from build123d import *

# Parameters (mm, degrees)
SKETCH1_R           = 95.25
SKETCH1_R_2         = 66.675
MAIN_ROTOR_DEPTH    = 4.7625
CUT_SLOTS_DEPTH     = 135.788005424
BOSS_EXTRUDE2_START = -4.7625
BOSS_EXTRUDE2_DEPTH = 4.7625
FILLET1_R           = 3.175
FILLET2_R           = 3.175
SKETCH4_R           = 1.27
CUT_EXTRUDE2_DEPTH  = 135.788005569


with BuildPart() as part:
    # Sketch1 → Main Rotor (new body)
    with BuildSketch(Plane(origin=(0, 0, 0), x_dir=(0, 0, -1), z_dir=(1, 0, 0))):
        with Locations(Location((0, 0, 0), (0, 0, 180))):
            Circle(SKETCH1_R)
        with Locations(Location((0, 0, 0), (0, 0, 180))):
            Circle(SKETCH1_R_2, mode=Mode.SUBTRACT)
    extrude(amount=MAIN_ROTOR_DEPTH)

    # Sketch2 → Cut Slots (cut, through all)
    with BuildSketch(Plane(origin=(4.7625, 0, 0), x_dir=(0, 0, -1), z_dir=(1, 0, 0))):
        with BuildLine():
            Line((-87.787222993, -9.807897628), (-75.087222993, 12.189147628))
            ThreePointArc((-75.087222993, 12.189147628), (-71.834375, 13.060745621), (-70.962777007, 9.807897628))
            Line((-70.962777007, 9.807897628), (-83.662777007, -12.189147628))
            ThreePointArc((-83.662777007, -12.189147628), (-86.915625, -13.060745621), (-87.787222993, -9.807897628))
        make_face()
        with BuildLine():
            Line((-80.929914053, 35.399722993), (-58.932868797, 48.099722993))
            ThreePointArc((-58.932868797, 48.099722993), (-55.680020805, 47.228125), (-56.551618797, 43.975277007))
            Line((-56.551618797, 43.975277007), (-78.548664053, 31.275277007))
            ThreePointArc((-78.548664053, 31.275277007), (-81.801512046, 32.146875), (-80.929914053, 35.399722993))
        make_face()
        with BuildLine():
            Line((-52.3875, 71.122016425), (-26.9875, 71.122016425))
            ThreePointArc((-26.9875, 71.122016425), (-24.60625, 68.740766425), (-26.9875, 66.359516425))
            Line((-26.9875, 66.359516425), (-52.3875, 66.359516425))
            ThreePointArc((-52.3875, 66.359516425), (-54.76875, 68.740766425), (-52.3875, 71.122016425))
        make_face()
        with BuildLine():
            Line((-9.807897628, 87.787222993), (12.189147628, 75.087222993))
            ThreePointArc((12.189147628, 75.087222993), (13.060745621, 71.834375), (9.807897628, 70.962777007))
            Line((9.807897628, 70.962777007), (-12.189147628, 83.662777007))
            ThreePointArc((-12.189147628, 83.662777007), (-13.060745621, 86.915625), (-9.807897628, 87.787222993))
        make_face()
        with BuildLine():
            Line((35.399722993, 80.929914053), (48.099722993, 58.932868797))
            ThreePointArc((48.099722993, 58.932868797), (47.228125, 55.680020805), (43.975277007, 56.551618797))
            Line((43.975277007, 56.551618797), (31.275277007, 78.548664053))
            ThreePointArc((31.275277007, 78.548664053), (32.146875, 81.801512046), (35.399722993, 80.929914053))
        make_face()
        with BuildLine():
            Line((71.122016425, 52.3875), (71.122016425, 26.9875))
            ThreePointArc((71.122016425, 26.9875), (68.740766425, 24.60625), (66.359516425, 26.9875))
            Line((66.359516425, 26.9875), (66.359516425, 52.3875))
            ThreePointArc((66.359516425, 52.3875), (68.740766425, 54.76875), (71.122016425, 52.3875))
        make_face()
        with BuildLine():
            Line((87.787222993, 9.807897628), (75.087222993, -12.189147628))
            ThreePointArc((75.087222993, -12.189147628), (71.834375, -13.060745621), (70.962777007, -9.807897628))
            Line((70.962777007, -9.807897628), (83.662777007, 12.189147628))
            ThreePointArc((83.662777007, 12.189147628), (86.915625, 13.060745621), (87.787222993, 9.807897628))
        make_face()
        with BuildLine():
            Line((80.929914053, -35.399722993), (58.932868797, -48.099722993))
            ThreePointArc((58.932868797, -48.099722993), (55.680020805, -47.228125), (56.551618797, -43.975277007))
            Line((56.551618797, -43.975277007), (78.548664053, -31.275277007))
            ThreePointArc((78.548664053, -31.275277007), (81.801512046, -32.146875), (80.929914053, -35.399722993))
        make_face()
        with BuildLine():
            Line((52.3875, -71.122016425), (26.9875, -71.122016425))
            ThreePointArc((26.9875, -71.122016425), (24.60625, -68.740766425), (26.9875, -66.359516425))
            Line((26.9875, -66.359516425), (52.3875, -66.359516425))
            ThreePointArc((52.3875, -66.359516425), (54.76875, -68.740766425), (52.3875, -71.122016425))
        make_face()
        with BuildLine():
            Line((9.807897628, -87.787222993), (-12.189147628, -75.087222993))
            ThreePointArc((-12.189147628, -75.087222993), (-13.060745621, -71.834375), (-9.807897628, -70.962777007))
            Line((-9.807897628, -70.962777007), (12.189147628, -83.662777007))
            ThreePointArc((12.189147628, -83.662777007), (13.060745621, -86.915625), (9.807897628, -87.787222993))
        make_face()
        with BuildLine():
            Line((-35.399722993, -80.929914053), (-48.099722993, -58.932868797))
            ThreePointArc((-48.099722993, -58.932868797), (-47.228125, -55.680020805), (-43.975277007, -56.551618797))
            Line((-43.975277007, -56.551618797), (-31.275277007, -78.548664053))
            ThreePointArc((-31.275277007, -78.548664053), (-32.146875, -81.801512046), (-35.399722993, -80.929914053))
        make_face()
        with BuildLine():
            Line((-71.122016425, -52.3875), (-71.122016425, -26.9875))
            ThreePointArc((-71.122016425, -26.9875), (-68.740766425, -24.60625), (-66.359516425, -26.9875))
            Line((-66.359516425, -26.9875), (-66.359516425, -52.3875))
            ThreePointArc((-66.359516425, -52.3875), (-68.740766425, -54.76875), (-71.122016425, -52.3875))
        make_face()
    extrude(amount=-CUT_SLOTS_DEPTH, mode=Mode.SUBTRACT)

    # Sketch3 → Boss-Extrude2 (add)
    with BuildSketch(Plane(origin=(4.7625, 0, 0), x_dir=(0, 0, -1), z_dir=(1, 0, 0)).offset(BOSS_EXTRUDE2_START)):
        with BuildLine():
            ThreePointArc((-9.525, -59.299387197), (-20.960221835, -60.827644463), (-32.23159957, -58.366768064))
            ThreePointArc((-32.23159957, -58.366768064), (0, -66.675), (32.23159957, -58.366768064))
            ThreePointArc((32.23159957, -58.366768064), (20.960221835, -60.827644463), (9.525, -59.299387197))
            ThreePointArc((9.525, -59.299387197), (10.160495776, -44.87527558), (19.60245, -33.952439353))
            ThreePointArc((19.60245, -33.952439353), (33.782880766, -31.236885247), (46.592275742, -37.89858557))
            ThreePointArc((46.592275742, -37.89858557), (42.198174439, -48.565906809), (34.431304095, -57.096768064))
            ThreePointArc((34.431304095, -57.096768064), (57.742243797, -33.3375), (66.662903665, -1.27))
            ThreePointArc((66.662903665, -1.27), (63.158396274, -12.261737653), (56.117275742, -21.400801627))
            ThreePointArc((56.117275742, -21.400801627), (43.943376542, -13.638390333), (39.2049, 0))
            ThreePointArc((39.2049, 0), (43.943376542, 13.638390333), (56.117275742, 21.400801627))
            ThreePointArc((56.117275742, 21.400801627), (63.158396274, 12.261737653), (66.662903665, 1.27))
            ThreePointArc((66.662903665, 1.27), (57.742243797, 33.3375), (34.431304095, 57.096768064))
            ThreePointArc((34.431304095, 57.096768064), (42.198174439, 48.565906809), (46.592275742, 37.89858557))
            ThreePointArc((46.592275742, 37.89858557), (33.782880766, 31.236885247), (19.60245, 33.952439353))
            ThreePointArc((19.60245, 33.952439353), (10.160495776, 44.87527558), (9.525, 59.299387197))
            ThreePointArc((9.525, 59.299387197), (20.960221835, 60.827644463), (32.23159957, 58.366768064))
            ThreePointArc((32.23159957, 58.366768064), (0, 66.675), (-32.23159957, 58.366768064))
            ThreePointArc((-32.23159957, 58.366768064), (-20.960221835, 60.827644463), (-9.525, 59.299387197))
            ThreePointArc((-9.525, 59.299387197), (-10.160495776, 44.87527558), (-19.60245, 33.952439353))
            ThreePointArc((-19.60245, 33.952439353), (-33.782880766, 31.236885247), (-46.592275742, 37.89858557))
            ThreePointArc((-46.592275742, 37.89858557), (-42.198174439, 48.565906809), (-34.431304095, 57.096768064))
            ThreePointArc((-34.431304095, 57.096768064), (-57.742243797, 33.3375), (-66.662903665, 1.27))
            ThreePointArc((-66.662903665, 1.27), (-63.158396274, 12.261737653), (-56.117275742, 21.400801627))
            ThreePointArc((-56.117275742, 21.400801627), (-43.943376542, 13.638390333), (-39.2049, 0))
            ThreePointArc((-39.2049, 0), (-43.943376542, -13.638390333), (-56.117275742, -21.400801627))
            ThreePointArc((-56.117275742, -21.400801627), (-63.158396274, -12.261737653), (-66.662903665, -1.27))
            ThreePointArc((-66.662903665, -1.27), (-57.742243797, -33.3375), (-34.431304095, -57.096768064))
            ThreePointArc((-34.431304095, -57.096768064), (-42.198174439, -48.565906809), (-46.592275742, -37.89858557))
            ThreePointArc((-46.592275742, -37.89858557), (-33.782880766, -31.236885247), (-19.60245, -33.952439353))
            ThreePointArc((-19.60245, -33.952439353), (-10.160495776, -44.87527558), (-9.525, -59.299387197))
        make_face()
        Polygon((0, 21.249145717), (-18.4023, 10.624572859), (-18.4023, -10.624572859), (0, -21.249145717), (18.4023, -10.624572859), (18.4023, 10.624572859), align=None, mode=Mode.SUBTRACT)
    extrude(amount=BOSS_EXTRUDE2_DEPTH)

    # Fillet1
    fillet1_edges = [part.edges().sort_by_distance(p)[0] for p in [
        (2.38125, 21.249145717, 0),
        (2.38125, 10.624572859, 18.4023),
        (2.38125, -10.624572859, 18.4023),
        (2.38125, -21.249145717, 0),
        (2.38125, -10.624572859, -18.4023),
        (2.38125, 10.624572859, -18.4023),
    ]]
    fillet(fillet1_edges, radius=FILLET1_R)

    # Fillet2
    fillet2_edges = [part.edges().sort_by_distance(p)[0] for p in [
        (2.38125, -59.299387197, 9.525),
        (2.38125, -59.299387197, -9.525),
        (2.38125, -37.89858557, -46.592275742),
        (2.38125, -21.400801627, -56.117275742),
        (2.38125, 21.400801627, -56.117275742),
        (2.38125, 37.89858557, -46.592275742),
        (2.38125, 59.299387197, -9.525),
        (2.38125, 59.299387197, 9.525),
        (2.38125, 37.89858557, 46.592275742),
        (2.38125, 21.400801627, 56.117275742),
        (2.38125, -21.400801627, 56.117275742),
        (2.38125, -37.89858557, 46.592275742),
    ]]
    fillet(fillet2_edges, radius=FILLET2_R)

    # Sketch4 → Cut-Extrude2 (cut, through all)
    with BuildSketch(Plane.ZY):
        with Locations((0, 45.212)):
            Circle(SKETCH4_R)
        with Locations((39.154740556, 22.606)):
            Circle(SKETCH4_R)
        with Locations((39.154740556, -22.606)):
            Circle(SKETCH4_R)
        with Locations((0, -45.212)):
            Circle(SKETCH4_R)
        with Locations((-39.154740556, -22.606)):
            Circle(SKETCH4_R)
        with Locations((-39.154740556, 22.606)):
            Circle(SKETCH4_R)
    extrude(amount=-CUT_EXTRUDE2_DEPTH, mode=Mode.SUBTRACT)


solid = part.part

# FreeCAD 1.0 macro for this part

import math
import FreeCAD as App
import Part
import Sketcher
from FreeCAD import Vector
Q = App.Units.Quantity


def edges_at(feature, points):
    """Names of the edges that pass closest to the given points."""
    edges = feature.Shape.Edges
    near = lambda p: min(range(len(edges)), key=lambda i: edges[i].distToShape(Part.Vertex(*p))[0])
    return sorted({f"Edge{near(p) + 1}" for p in points})

doc = App.newDocument("Part")
body = doc.addObject("PartDesign::Body", "Body")

# Sketch on YZ plane
sketch1 = body.newObject("Sketcher::SketchObject", "Sketch")
sketch1.AttachmentSupport = (doc.getObject("YZ_Plane"), [""])
sketch1.MapMode = "FlatFace"
sketch1.addGeometry([
    Part.Circle(Vector(0, 0, 0), Vector(0, 0, 1), 95),
    Part.Circle(Vector(0, 0, 0), Vector(0, 0, 1), 67),
], False)
sketch1.addConstraint([
    Sketcher.Constraint("Coincident", 0, 3, -1, 1),
    Sketcher.Constraint("Coincident", 1, 3, -1, 1),
    Sketcher.Constraint("Diameter", 0, Q("7.5 in")),
    Sketcher.Constraint("Diameter", 1, Q("5.25 in")),
])
pad1 = body.newObject("PartDesign::Pad", "Pad")
pad1.Profile = sketch1
pad1.Length = Q("0.1875 in")

# Sketch on YZ plane
sketch2 = body.newObject("Sketcher::SketchObject", "Sketch001")
sketch2.AttachmentSupport = (doc.getObject("YZ_Plane"), [""])
sketch2.MapMode = "FlatFace"
sketch2.AttachmentOffset = App.Placement(Vector(0, 0, 0.1875 * 25.4), App.Rotation())
sketch2.addGeometry([
    Part.LineSegment(Vector(12.2, 75.1, 0), Vector(-9.8, 87.8, 0)),  # 0
    Part.ArcOfCircle(Part.Circle(Vector(-11, 85.7, 0), Vector(0, 0, 1), 2.4), math.radians(60), math.radians(240)),  # 1
    Part.LineSegment(Vector(-12.2, 83.7, 0), Vector(9.8, 71, 0)),  # 2
    Part.ArcOfCircle(Part.Circle(Vector(11, 73, 0), Vector(0, 0, 1), 2.4), math.radians(-120), math.radians(60)),  # 3
    Part.LineSegment(Vector(48.1, 58.9, 0), Vector(35.4, 80.9, 0)),  # 4
    Part.ArcOfCircle(Part.Circle(Vector(33.3, 79.7, 0), Vector(0, 0, 1), 2.4), math.radians(30), math.radians(210)),  # 5
    Part.LineSegment(Vector(31.3, 78.5, 0), Vector(44, 56.6, 0)),  # 6
    Part.ArcOfCircle(Part.Circle(Vector(46, 57.7, 0), Vector(0, 0, 1), 2.4), math.radians(-150), math.radians(30)),  # 7
    Part.LineSegment(Vector(71.1, 27, 0), Vector(71.1, 52.4, 0)),  # 8
    Part.ArcOfCircle(Part.Circle(Vector(68.7, 52.4, 0), Vector(0, 0, 1), 2.4), math.radians(0), math.radians(180)),  # 9
    Part.LineSegment(Vector(66.4, 52.4, 0), Vector(66.4, 27, 0)),  # 10
    Part.ArcOfCircle(Part.Circle(Vector(68.7, 27, 0), Vector(0, 0, 1), 2.4), math.radians(180), math.radians(360)),  # 11
    Part.LineSegment(Vector(75.1, -12.2, 0), Vector(87.8, 9.8, 0)),  # 12
    Part.ArcOfCircle(Part.Circle(Vector(85.7, 11, 0), Vector(0, 0, 1), 2.4), math.radians(-30), math.radians(150)),  # 13
    Part.LineSegment(Vector(83.7, 12.2, 0), Vector(71, -9.8, 0)),  # 14
    Part.ArcOfCircle(Part.Circle(Vector(73, -11, 0), Vector(0, 0, 1), 2.4), math.radians(150), math.radians(330)),  # 15
    Part.LineSegment(Vector(58.9, -48.1, 0), Vector(80.9, -35.4, 0)),  # 16
    Part.ArcOfCircle(Part.Circle(Vector(79.7, -33.3, 0), Vector(0, 0, 1), 2.4), math.radians(-60), math.radians(120)),  # 17
    Part.LineSegment(Vector(78.5, -31.3, 0), Vector(56.6, -44, 0)),  # 18
    Part.ArcOfCircle(Part.Circle(Vector(57.7, -46, 0), Vector(0, 0, 1), 2.4), math.radians(120), math.radians(300)),  # 19
    Part.LineSegment(Vector(27, -71.1, 0), Vector(52.4, -71.1, 0)),  # 20
    Part.ArcOfCircle(Part.Circle(Vector(52.4, -68.7, 0), Vector(0, 0, 1), 2.4), math.radians(-90), math.radians(90)),  # 21
    Part.LineSegment(Vector(52.4, -66.4, 0), Vector(27, -66.4, 0)),  # 22
    Part.ArcOfCircle(Part.Circle(Vector(27, -68.7, 0), Vector(0, 0, 1), 2.4), math.radians(90), math.radians(270)),  # 23
    Part.LineSegment(Vector(-12.2, -75.1, 0), Vector(9.8, -87.8, 0)),  # 24
    Part.ArcOfCircle(Part.Circle(Vector(11, -85.7, 0), Vector(0, 0, 1), 2.4), math.radians(-120), math.radians(60)),  # 25
    Part.LineSegment(Vector(12.2, -83.7, 0), Vector(-9.8, -71, 0)),  # 26
    Part.ArcOfCircle(Part.Circle(Vector(-11, -73, 0), Vector(0, 0, 1), 2.4), math.radians(60), math.radians(240)),  # 27
    Part.LineSegment(Vector(-48.1, -58.9, 0), Vector(-35.4, -80.9, 0)),  # 28
    Part.ArcOfCircle(Part.Circle(Vector(-33.3, -79.7, 0), Vector(0, 0, 1), 2.4), math.radians(-150), math.radians(30)),  # 29
    Part.LineSegment(Vector(-31.3, -78.5, 0), Vector(-44, -56.6, 0)),  # 30
    Part.ArcOfCircle(Part.Circle(Vector(-46, -57.7, 0), Vector(0, 0, 1), 2.4), math.radians(30), math.radians(210)),  # 31
    Part.LineSegment(Vector(-71.1, -27, 0), Vector(-71.1, -52.4, 0)),  # 32
    Part.ArcOfCircle(Part.Circle(Vector(-68.7, -52.4, 0), Vector(0, 0, 1), 2.4), math.radians(180), math.radians(360)),  # 33
    Part.LineSegment(Vector(-66.4, -52.4, 0), Vector(-66.4, -27, 0)),  # 34
    Part.ArcOfCircle(Part.Circle(Vector(-68.7, -27, 0), Vector(0, 0, 1), 2.4), math.radians(0), math.radians(180)),  # 35
    Part.LineSegment(Vector(-75.1, 12.2, 0), Vector(-87.8, -9.8, 0)),  # 36
    Part.ArcOfCircle(Part.Circle(Vector(-85.7, -11, 0), Vector(0, 0, 1), 2.4), math.radians(150), math.radians(330)),  # 37
    Part.LineSegment(Vector(-83.7, -12.2, 0), Vector(-71, 9.8, 0)),  # 38
    Part.ArcOfCircle(Part.Circle(Vector(-73, 11, 0), Vector(0, 0, 1), 2.4), math.radians(-30), math.radians(150)),  # 39
    Part.LineSegment(Vector(-58.9, 48.1, 0), Vector(-80.9, 35.4, 0)),  # 40
    Part.ArcOfCircle(Part.Circle(Vector(-79.7, 33.3, 0), Vector(0, 0, 1), 2.4), math.radians(120), math.radians(300)),  # 41
    Part.LineSegment(Vector(-78.5, 31.3, 0), Vector(-56.6, 44, 0)),  # 42
    Part.ArcOfCircle(Part.Circle(Vector(-57.7, 46, 0), Vector(0, 0, 1), 2.4), math.radians(-60), math.radians(120)),  # 43
    Part.LineSegment(Vector(-27, 71.1, 0), Vector(-52.4, 71.1, 0)),  # 44
    Part.ArcOfCircle(Part.Circle(Vector(-52.4, 68.7, 0), Vector(0, 0, 1), 2.4), math.radians(90), math.radians(270)),  # 45
    Part.LineSegment(Vector(-52.4, 66.4, 0), Vector(-27, 66.4, 0)),  # 46
    Part.ArcOfCircle(Part.Circle(Vector(-27, 68.7, 0), Vector(0, 0, 1), 2.4), math.radians(-90), math.radians(90)),  # 47
], False)
sketch2.addConstraint([
    Sketcher.Constraint("Tangent", 0, 2, 1, 1),
    Sketcher.Constraint("Tangent", 1, 2, 2, 1),
    Sketcher.Constraint("Tangent", 2, 2, 3, 1),
    Sketcher.Constraint("Tangent", 3, 2, 0, 1),
    Sketcher.Constraint("Tangent", 4, 2, 5, 1),
    Sketcher.Constraint("Tangent", 5, 2, 6, 1),
    Sketcher.Constraint("Tangent", 6, 2, 7, 1),
    Sketcher.Constraint("Tangent", 7, 2, 4, 1),
    Sketcher.Constraint("Tangent", 8, 2, 9, 1),
    Sketcher.Constraint("Tangent", 9, 2, 10, 1),
    Sketcher.Constraint("Tangent", 10, 2, 11, 1),
    Sketcher.Constraint("Tangent", 11, 2, 8, 1),
    Sketcher.Constraint("Tangent", 12, 2, 13, 1),
    Sketcher.Constraint("Tangent", 13, 2, 14, 1),
    Sketcher.Constraint("Tangent", 14, 2, 15, 1),
    Sketcher.Constraint("Tangent", 15, 2, 12, 1),
    Sketcher.Constraint("Tangent", 16, 2, 17, 1),
    Sketcher.Constraint("Tangent", 17, 2, 18, 1),
    Sketcher.Constraint("Tangent", 18, 2, 19, 1),
    Sketcher.Constraint("Tangent", 19, 2, 16, 1),
    Sketcher.Constraint("Tangent", 20, 2, 21, 1),
    Sketcher.Constraint("Tangent", 21, 2, 22, 1),
    Sketcher.Constraint("Tangent", 22, 2, 23, 1),
    Sketcher.Constraint("Tangent", 23, 2, 20, 1),
    Sketcher.Constraint("Tangent", 24, 2, 25, 1),
    Sketcher.Constraint("Tangent", 25, 2, 26, 1),
    Sketcher.Constraint("Tangent", 26, 2, 27, 1),
    Sketcher.Constraint("Tangent", 27, 2, 24, 1),
    Sketcher.Constraint("Tangent", 28, 2, 29, 1),
    Sketcher.Constraint("Tangent", 29, 2, 30, 1),
    Sketcher.Constraint("Tangent", 30, 2, 31, 1),
    Sketcher.Constraint("Tangent", 31, 2, 28, 1),
    Sketcher.Constraint("Tangent", 32, 2, 33, 1),
    Sketcher.Constraint("Tangent", 33, 2, 34, 1),
    Sketcher.Constraint("Tangent", 34, 2, 35, 1),
    Sketcher.Constraint("Tangent", 35, 2, 32, 1),
    Sketcher.Constraint("Tangent", 36, 2, 37, 1),
    Sketcher.Constraint("Tangent", 37, 2, 38, 1),
    Sketcher.Constraint("Tangent", 38, 2, 39, 1),
    Sketcher.Constraint("Tangent", 39, 2, 36, 1),
    Sketcher.Constraint("Tangent", 40, 2, 41, 1),
    Sketcher.Constraint("Tangent", 41, 2, 42, 1),
    Sketcher.Constraint("Tangent", 42, 2, 43, 1),
    Sketcher.Constraint("Tangent", 43, 2, 40, 1),
    Sketcher.Constraint("Tangent", 44, 2, 45, 1),
    Sketcher.Constraint("Tangent", 45, 2, 46, 1),
    Sketcher.Constraint("Tangent", 46, 2, 47, 1),
    Sketcher.Constraint("Tangent", 47, 2, 44, 1),
    Sketcher.Constraint("Vertical", 8),
    Sketcher.Constraint("Vertical", 10),
    Sketcher.Constraint("Horizontal", 20),
    Sketcher.Constraint("Horizontal", 22),
    Sketcher.Constraint("Vertical", 32),
    Sketcher.Constraint("Vertical", 34),
    Sketcher.Constraint("Horizontal", 44),
    Sketcher.Constraint("Horizontal", 46),
    Sketcher.Constraint("Equal", 1, 3),
    Sketcher.Constraint("Equal", 3, 5),
    Sketcher.Constraint("Equal", 5, 7),
    Sketcher.Constraint("Equal", 7, 9),
    Sketcher.Constraint("Equal", 11, 13),
    Sketcher.Constraint("Equal", 13, 15),
    Sketcher.Constraint("Equal", 15, 17),
    Sketcher.Constraint("Equal", 17, 19),
    Sketcher.Constraint("Equal", 19, 21),
    Sketcher.Constraint("Equal", 23, 25),
    Sketcher.Constraint("Equal", 25, 27),
    Sketcher.Constraint("Equal", 27, 29),
    Sketcher.Constraint("Equal", 29, 31),
    Sketcher.Constraint("Equal", 31, 33),
    Sketcher.Constraint("Equal", 35, 37),
    Sketcher.Constraint("Equal", 37, 39),
    Sketcher.Constraint("Equal", 39, 41),
    Sketcher.Constraint("Equal", 41, 43),
    Sketcher.Constraint("Equal", 43, 45),
    Sketcher.Constraint("Symmetric", 1, 3, 25, 3, -1, 1),
    Sketcher.Constraint("Symmetric", 3, 3, 27, 3, -1, 1),
    Sketcher.Constraint("Symmetric", 5, 3, 29, 3, -1, 1),
    Sketcher.Constraint("Symmetric", 7, 3, 31, 3, -1, 1),
    Sketcher.Constraint("Symmetric", 9, 3, 33, 3, -1, 1),
    Sketcher.Constraint("Symmetric", 13, 3, 37, 3, -1, 1),
    Sketcher.Constraint("Symmetric", 15, 3, 39, 3, -1, 1),
    Sketcher.Constraint("Symmetric", 17, 3, 41, 3, -1, 1),
    Sketcher.Constraint("Symmetric", 19, 3, 43, 3, -1, 1),
    Sketcher.Constraint("Symmetric", 21, 3, 45, 3, -1, 1),
    Sketcher.Constraint("Perpendicular", 2, 12),
    Sketcher.Constraint("Perpendicular", 6, 16),
    Sketcher.Constraint("Horizontal", 15, 3, 37, 3),
    Sketcher.Constraint("Vertical", 3, 3, 25, 3),
    Sketcher.Constraint("Equal", 22, 44),
    Sketcher.Constraint("Equal", 46, 8),
    Sketcher.Constraint("Equal", 10, 32),
    Sketcher.Constraint("Equal", 2, 4),
    Sketcher.Constraint("Equal", 6, 12),
    Sketcher.Constraint("Equal", 14, 16),
    Sketcher.Constraint("DistanceX", 20, 1, 20, 2, Q("1 in")),
    Sketcher.Constraint("Distance", 0, Q("1 in")),
    Sketcher.Constraint("Angle", 0, Q("150 deg")),
    Sketcher.Constraint("Angle", 4, Q("120 deg")),
    Sketcher.Constraint("Radius", 1, Q("0.09375 in")),
    Sketcher.Constraint("DistanceY", -1, 1, 1, 3, Q("3.375 in")),
    Sketcher.Constraint("DistanceX", -1, 1, 5, 3, Q("1.3125 in")),
    Sketcher.Constraint("DistanceY", -1, 1, 9, 3, Q("2.0625 in")),
    Sketcher.Constraint("DistanceX", -1, 1, 13, 3, Q("3.375 in")),
    Sketcher.Constraint("DistanceY", 17, 3, -1, 1, Q("1.3125 in")),
    Sketcher.Constraint("DistanceX", -1, 1, 21, 3, Q("2.0625 in")),
    Sketcher.Constraint("DistanceY", -1, 1, 5, 3, 79.739289),
    Sketcher.Constraint("DistanceX", -1, 1, 17, 3, 79.739289),
    Sketcher.Constraint("DistanceX", -1, 1, 9, 3, 68.740766),
    Sketcher.Constraint("DistanceY", 21, 3, -1, 1, 68.740766),
])
pocket1 = body.newObject("PartDesign::Pocket", "Pocket")
pocket1.Profile = sketch2
pocket1.Type = "ThroughAll"

# Sketch on YZ plane
sketch3 = body.newObject("Sketcher::SketchObject", "Sketch002")
sketch3.AttachmentSupport = (doc.getObject("YZ_Plane"), [""])
sketch3.MapMode = "FlatFace"
sketch3.addGeometry([
    Part.ArcOfCircle(Part.Circle(Vector(-28, 20, 0), Vector(0, 0, 1), 33), math.radians(158), math.radians(198)),  # 0
    Part.ArcOfCircle(Part.Circle(Vector(0, 0, 0), Vector(0, 0, 1), 67), math.radians(151), math.radians(209)),  # 1
    Part.ArcOfCircle(Part.Circle(Vector(-28, -20, 0), Vector(0, 0, 1), 33), math.radians(162), math.radians(202)),  # 2
    Part.ArcOfCircle(Part.Circle(Vector(-53, -31, 0), Vector(0, 0, 1), 22), math.radians(30), math.radians(107)),  # 3
    Part.ArcOfCircle(Part.Circle(Vector(-53, -31, 0), Vector(0, 0, 1), 22), math.radians(-47), math.radians(30)),  # 4
    Part.ArcOfCircle(Part.Circle(Vector(-31, -14, 0), Vector(0, 0, 1), 33), math.radians(-142), math.radians(-102)),  # 5
    Part.ArcOfCircle(Part.Circle(Vector(0, 0, 0), Vector(0, 0, 1), 67), math.radians(-149), math.radians(-91)),  # 6
    Part.ArcOfCircle(Part.Circle(Vector(3, -34, 0), Vector(0, 0, 1), 33), math.radians(-138), math.radians(-98)),  # 7
    Part.ArcOfCircle(Part.Circle(Vector(0, -61, 0), Vector(0, 0, 1), 22), math.radians(90), math.radians(167)),  # 8
    Part.ArcOfCircle(Part.Circle(Vector(0, -61, 0), Vector(0, 0, 1), 22), math.radians(13), math.radians(90)),  # 9
    Part.ArcOfCircle(Part.Circle(Vector(-3, -34, 0), Vector(0, 0, 1), 33), math.radians(-82), math.radians(-42)),  # 10
    Part.ArcOfCircle(Part.Circle(Vector(0, 0, 0), Vector(0, 0, 1), 67), math.radians(-89), math.radians(-31)),  # 11
    Part.ArcOfCircle(Part.Circle(Vector(31, -14, 0), Vector(0, 0, 1), 33), math.radians(-78), math.radians(-38)),  # 12
    Part.ArcOfCircle(Part.Circle(Vector(53, -31, 0), Vector(0, 0, 1), 22), math.radians(150), math.radians(227)),  # 13
    Part.ArcOfCircle(Part.Circle(Vector(53, -31, 0), Vector(0, 0, 1), 22), math.radians(73), math.radians(150)),  # 14
    Part.ArcOfCircle(Part.Circle(Vector(28, -20, 0), Vector(0, 0, 1), 33), math.radians(-22), math.radians(18)),  # 15
    Part.ArcOfCircle(Part.Circle(Vector(0, 0, 0), Vector(0, 0, 1), 67), math.radians(-29), math.radians(29)),  # 16
    Part.ArcOfCircle(Part.Circle(Vector(28, 20, 0), Vector(0, 0, 1), 33), math.radians(-18), math.radians(22)),  # 17
    Part.ArcOfCircle(Part.Circle(Vector(53, 31, 0), Vector(0, 0, 1), 22), math.radians(-150), math.radians(-73)),  # 18
    Part.ArcOfCircle(Part.Circle(Vector(53, 31, 0), Vector(0, 0, 1), 22), math.radians(133), math.radians(210)),  # 19
    Part.ArcOfCircle(Part.Circle(Vector(31, 14, 0), Vector(0, 0, 1), 33), math.radians(38), math.radians(78)),  # 20
    Part.ArcOfCircle(Part.Circle(Vector(0, 0, 0), Vector(0, 0, 1), 67), math.radians(31), math.radians(89)),  # 21
    Part.ArcOfCircle(Part.Circle(Vector(-3, 34, 0), Vector(0, 0, 1), 33), math.radians(42), math.radians(82)),  # 22
    Part.ArcOfCircle(Part.Circle(Vector(0, 61, 0), Vector(0, 0, 1), 22), math.radians(-90), math.radians(-13)),  # 23
    Part.ArcOfCircle(Part.Circle(Vector(0, 61, 0), Vector(0, 0, 1), 22), math.radians(-167), math.radians(-90)),  # 24
    Part.ArcOfCircle(Part.Circle(Vector(3, 34, 0), Vector(0, 0, 1), 33), math.radians(98), math.radians(138)),  # 25
    Part.ArcOfCircle(Part.Circle(Vector(0, 0, 0), Vector(0, 0, 1), 67), math.radians(91), math.radians(149)),  # 26
    Part.ArcOfCircle(Part.Circle(Vector(-31, 14, 0), Vector(0, 0, 1), 33), math.radians(102), math.radians(142)),  # 27
    Part.ArcOfCircle(Part.Circle(Vector(-53, 31, 0), Vector(0, 0, 1), 22), math.radians(-30), math.radians(47)),  # 28
    Part.ArcOfCircle(Part.Circle(Vector(-53, 31, 0), Vector(0, 0, 1), 22), math.radians(-107), math.radians(-30)),  # 29
    Part.LineSegment(Vector(11, 18, 0), Vector(21, 0, 0)),  # 30
    Part.LineSegment(Vector(21, 0, 0), Vector(11, -18, 0)),  # 31
    Part.LineSegment(Vector(11, -18, 0), Vector(-11, -18, 0)),  # 32
    Part.LineSegment(Vector(-11, -18, 0), Vector(-21, 0, 0)),  # 33
    Part.LineSegment(Vector(-21, 0, 0), Vector(-11, 18, 0)),  # 34
    Part.LineSegment(Vector(-11, 18, 0), Vector(11, 18, 0)),  # 35
], False)
sketch3.addConstraint([
    Sketcher.Constraint("Coincident", 0, 1, 1, 1),
    Sketcher.Constraint("Coincident", 1, 2, 2, 2),
    Sketcher.Constraint("Coincident", 2, 1, 3, 2),
    Sketcher.Constraint("Tangent", 3, 1, 4, 2),
    Sketcher.Constraint("Coincident", 4, 1, 5, 2),
    Sketcher.Constraint("Coincident", 5, 1, 6, 1),
    Sketcher.Constraint("Coincident", 6, 2, 7, 2),
    Sketcher.Constraint("Coincident", 7, 1, 8, 2),
    Sketcher.Constraint("Tangent", 8, 1, 9, 2),
    Sketcher.Constraint("Coincident", 9, 1, 10, 2),
    Sketcher.Constraint("Coincident", 10, 1, 11, 1),
    Sketcher.Constraint("Coincident", 11, 2, 12, 2),
    Sketcher.Constraint("Coincident", 12, 1, 13, 2),
    Sketcher.Constraint("Tangent", 13, 1, 14, 2),
    Sketcher.Constraint("Coincident", 14, 1, 15, 2),
    Sketcher.Constraint("Coincident", 15, 1, 16, 1),
    Sketcher.Constraint("Coincident", 16, 2, 17, 2),
    Sketcher.Constraint("Coincident", 17, 1, 18, 2),
    Sketcher.Constraint("Tangent", 18, 1, 19, 2),
    Sketcher.Constraint("Coincident", 19, 1, 20, 2),
    Sketcher.Constraint("Coincident", 20, 1, 21, 1),
    Sketcher.Constraint("Coincident", 21, 2, 22, 2),
    Sketcher.Constraint("Coincident", 22, 1, 23, 2),
    Sketcher.Constraint("Tangent", 23, 1, 24, 2),
    Sketcher.Constraint("Coincident", 24, 1, 25, 2),
    Sketcher.Constraint("Coincident", 25, 1, 26, 1),
    Sketcher.Constraint("Coincident", 26, 2, 27, 2),
    Sketcher.Constraint("Coincident", 27, 1, 28, 2),
    Sketcher.Constraint("Tangent", 28, 1, 29, 2),
    Sketcher.Constraint("Coincident", 29, 1, 0, 2),
    Sketcher.Constraint("Coincident", 30, 2, 31, 1),
    Sketcher.Constraint("Coincident", 31, 2, 32, 1),
    Sketcher.Constraint("Coincident", 32, 2, 33, 1),
    Sketcher.Constraint("Coincident", 33, 2, 34, 1),
    Sketcher.Constraint("Coincident", 34, 2, 35, 1),
    Sketcher.Constraint("Coincident", 35, 2, 30, 1),
    Sketcher.Constraint("Horizontal", 32),
    Sketcher.Constraint("Horizontal", 35),
    Sketcher.Constraint("Coincident", 1, 3, -1, 1),
    Sketcher.Constraint("Coincident", 6, 3, -1, 1),
    Sketcher.Constraint("Coincident", 11, 3, -1, 1),
    Sketcher.Constraint("Coincident", 16, 3, -1, 1),
    Sketcher.Constraint("Coincident", 21, 3, -1, 1),
    Sketcher.Constraint("Coincident", 26, 3, -1, 1),
    Sketcher.Constraint("Equal", 0, 2),
    Sketcher.Constraint("Equal", 3, 4),
    Sketcher.Constraint("Equal", 2, 5),
    Sketcher.Constraint("Equal", 1, 6),
    Sketcher.Constraint("Equal", 5, 7),
    Sketcher.Constraint("Equal", 4, 8),
    Sketcher.Constraint("Equal", 8, 9),
    Sketcher.Constraint("Equal", 7, 10),
    Sketcher.Constraint("Equal", 6, 11),
    Sketcher.Constraint("Equal", 10, 12),
    Sketcher.Constraint("Equal", 9, 13),
    Sketcher.Constraint("Equal", 13, 14),
    Sketcher.Constraint("Equal", 12, 15),
    Sketcher.Constraint("Equal", 11, 16),
    Sketcher.Constraint("Equal", 15, 17),
    Sketcher.Constraint("Equal", 14, 18),
    Sketcher.Constraint("Equal", 18, 19),
    Sketcher.Constraint("Equal", 17, 20),
    Sketcher.Constraint("Equal", 16, 21),
    Sketcher.Constraint("Equal", 20, 22),
    Sketcher.Constraint("Equal", 19, 23),
    Sketcher.Constraint("Equal", 23, 24),
    Sketcher.Constraint("Equal", 22, 25),
    Sketcher.Constraint("Equal", 21, 26),
    Sketcher.Constraint("Equal", 25, 27),
    Sketcher.Constraint("Equal", 24, 28),
    Sketcher.Constraint("Equal", 28, 29),
    Sketcher.Constraint("Symmetric", 0, 3, 15, 3, -1, 1),
    Sketcher.Constraint("Symmetric", 2, 3, 17, 3, -1, 1),
    Sketcher.Constraint("Symmetric", 3, 3, 18, 3, -1, 1),
    Sketcher.Constraint("Symmetric", 5, 3, 20, 3, -1, 1),
    Sketcher.Constraint("Symmetric", 7, 3, 22, 3, -1, 1),
    Sketcher.Constraint("Symmetric", 8, 3, 23, 3, -1, 1),
    Sketcher.Constraint("Symmetric", 10, 3, 25, 3, -1, 1),
    Sketcher.Constraint("Symmetric", 12, 3, 27, 3, -1, 1),
    Sketcher.Constraint("Symmetric", 13, 3, 28, 3, -1, 1),
    Sketcher.Constraint("Symmetric", 30, 2, 33, 2, -1, 1),
    Sketcher.Constraint("Symmetric", 31, 2, 34, 2, -1, 1),
    Sketcher.Constraint("Symmetric", 7, 3, 10, 3, -2),
    Sketcher.Constraint("Symmetric", 5, 3, 12, 3, -2),
    Sketcher.Constraint("Symmetric", 3, 3, 13, 3, -2),
    Sketcher.Constraint("Symmetric", 2, 3, 15, 3, -2),
    Sketcher.Constraint("PointOnObject", 8, 3, -2),
    Sketcher.Constraint("PointOnObject", 8, 1, -2),
    Sketcher.Constraint("PointOnObject", 23, 1, -2),
    Sketcher.Constraint("PointOnObject", 30, 2, -1),
    Sketcher.Constraint("Parallel", 30, 33),
    Sketcher.Constraint("Horizontal", 3, 1, 13, 1),
    Sketcher.Constraint("Horizontal", 18, 1, 28, 1),
    Sketcher.Constraint("Vertical", 13, 1, 18, 1),
    Sketcher.Constraint("Vertical", 32, 2, 34, 2),
    Sketcher.Constraint("Angle", 30, Q("-60 deg")),
    Sketcher.Constraint("Radius", 0, Q("1.3125 in")),
    Sketcher.Constraint("Radius", 1, Q("2.625 in")),
    Sketcher.Constraint("Radius", 3, Q("0.866 in")),
    Sketcher.Constraint("DistanceX", 6, 2, -1, 1, Q("0.05 in")),
    Sketcher.Constraint("DistanceY", 2, 1, -1, 1, Q("0.375 in")),
    Sketcher.Constraint("DistanceY", 8, 3, -1, 1, Q("2.4095 in")),
    Sketcher.Constraint("DistanceY", 31, 2, -1, 1, Q("0.7245 in")),
    Sketcher.Constraint("DistanceY", -1, 1, 0, 1, 32.2316),
    Sketcher.Constraint("DistanceX", 7, 1, -1, 1, 21.400802),
    Sketcher.Constraint("DistanceX", 32, 2, 32, 1, 21.249146),
    Sketcher.Constraint("DistanceX", 0, 3, -1, 1, 27.518228),
    Sketcher.Constraint("DistanceX", 3, 3, -1, 1, 53.001881),
    Sketcher.Constraint("DistanceX", 3, 1, -1, 1, 33.952439),
    Sketcher.Constraint("DistanceX", 5, 1, -1, 1, 57.096768),
    Sketcher.Constraint("DistanceX", 5, 3, -1, 1, 30.726386),
])
pad2 = body.newObject("PartDesign::Pad", "Pad001")
pad2.Profile = sketch3
pad2.Length = Q("0.1875 in")
doc.recompute()

fillet = body.newObject("PartDesign::Fillet", "Fillet")
fillet.Base = (pad2, edges_at(pad2, [
    (2.381, 21.249, 0),
    (2.381, 10.625, 18.402),
    (2.381, -10.625, 18.402),
    (2.381, -21.249, 0),
    (2.381, -10.625, -18.402),
    (2.381, 10.625, -18.402),
]))
fillet.Radius = Q("0.125 in")
doc.recompute()

fillet2 = body.newObject("PartDesign::Fillet", "Fillet001")
fillet2.Base = (fillet, edges_at(fillet, [
    (2.381, -59.299, 9.525),
    (2.381, -59.299, -9.525),
    (2.381, -37.899, -46.592),
    (2.381, -21.401, -56.117),
    (2.381, 21.401, -56.117),
    (2.381, 37.899, -46.592),
    (2.381, 59.299, -9.525),
    (2.381, 59.299, 9.525),
    (2.381, 37.899, 46.592),
    (2.381, 21.401, 56.117),
    (2.381, -21.401, 56.117),
    (2.381, -37.899, 46.592),
]))
fillet2.Radius = Q("0.125 in")

# Sketch on YZ plane
sketch4 = body.newObject("Sketcher::SketchObject", "Sketch003")
sketch4.AttachmentSupport = (doc.getObject("YZ_Plane"), [""])
sketch4.MapMode = "FlatFace"
sketch4.addGeometry([
    Part.Circle(Vector(45.2, 0, 0), Vector(0, 0, 1), 1.3),  # 0
    Part.Circle(Vector(22.6, 39.2, 0), Vector(0, 0, 1), 1.3),  # 1
    Part.Circle(Vector(-22.6, 39.2, 0), Vector(0, 0, 1), 1.3),  # 2
    Part.Circle(Vector(-45.2, 0, 0), Vector(0, 0, 1), 1.3),  # 3
    Part.Circle(Vector(-22.6, -39.2, 0), Vector(0, 0, 1), 1.3),  # 4
    Part.Circle(Vector(22.6, -39.2, 0), Vector(0, 0, 1), 1.3),  # 5
], False)
sketch4.addConstraint([
    Sketcher.Constraint("Equal", 0, 1),
    Sketcher.Constraint("Equal", 1, 2),
    Sketcher.Constraint("Equal", 2, 3),
    Sketcher.Constraint("Equal", 3, 4),
    Sketcher.Constraint("Equal", 4, 5),
    Sketcher.Constraint("Symmetric", 0, 3, 3, 3, -1, 1),
    Sketcher.Constraint("Symmetric", 1, 3, 4, 3, -1, 1),
    Sketcher.Constraint("Symmetric", 2, 3, 5, 3, -1, 1),
    Sketcher.Constraint("Symmetric", 1, 3, 2, 3, -2),
    Sketcher.Constraint("PointOnObject", 0, 3, -1),
    Sketcher.Constraint("Diameter", 0, Q("0.1 in")),
    Sketcher.Constraint("DistanceX", -1, 1, 0, 3, Q("1.78 in")),
    Sketcher.Constraint("DistanceX", -1, 1, 1, 3, Q("0.89 in")),
    Sketcher.Constraint("DistanceY", -1, 1, 1, 3, 39.154741),
])
pocket2 = body.newObject("PartDesign::Pocket", "Pocket001")
pocket2.Profile = sketch4
pocket2.Type = "ThroughAll"
pocket2.Reversed = True

doc.recompute()
